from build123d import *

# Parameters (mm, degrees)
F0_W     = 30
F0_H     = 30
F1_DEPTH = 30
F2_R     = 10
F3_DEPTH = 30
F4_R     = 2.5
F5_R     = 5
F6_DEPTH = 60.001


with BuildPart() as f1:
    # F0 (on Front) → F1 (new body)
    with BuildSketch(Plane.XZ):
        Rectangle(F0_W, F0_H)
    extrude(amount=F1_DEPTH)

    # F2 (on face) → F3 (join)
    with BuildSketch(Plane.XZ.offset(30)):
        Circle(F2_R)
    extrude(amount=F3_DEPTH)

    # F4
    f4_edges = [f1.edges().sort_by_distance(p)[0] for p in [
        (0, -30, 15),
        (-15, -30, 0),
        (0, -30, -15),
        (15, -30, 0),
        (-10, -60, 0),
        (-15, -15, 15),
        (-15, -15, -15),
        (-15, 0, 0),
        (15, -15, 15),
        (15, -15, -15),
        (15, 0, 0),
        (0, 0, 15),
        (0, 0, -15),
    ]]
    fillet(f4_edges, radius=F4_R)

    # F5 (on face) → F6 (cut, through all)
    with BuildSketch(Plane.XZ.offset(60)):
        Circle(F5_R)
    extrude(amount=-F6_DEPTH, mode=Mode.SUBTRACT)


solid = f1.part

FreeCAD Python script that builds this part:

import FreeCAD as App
import Part
import Sketcher

V = App.Vector


def edges_at(feature, points):
    """Names of the edges that pass closest to the given points."""
    edges = feature.Shape.Edges
    near = lambda p: min(range(len(edges)), key=lambda i: edges[i].distToShape(Part.Vertex(*p))[0])
    return sorted({f"Edge{near(p) + 1}" for p in points})

doc = App.newDocument("Part")
params = doc.addObject("Spreadsheet::Sheet", "Params")
for row, (alias, value) in enumerate([
    ("sketch1_width", "30 mm"),
    ("pad1_length", "30 mm"),
    ("sketch2_diameter", "20 mm"),
    ("pad2_length", "30 mm"),
    ("fillet_radius", "2.5 mm"),
    ("sketch3_diameter", "10 mm"),
], start=1):
    params.set(f"A{row}", alias)
    params.set(f"B{row}", "=" + value)
    params.setAlias(f"B{row}", alias)

body = doc.addObject("PartDesign::Body", "Body")

# Sketch on XZ plane
sketch1 = body.newObject("Sketcher::SketchObject", "Sketch")
sketch1.AttachmentSupport = (doc.getObject("XZ_Plane"), [""])
sketch1.MapMode = "FlatFace"
sketch1.addGeometry(Part.LineSegment(V(-15, 15, 0), V(-15, -15, 0)), False)
sketch1.addGeometry(Part.LineSegment(V(-15, -15, 0), V(15, -15, 0)), False)
sketch1.addGeometry(Part.LineSegment(V(15, -15, 0), V(15, 15, 0)), False)
sketch1.addGeometry(Part.LineSegment(V(15, 15, 0), V(-15, 15, 0)), False)
sketch1.addConstraint(Sketcher.Constraint("Coincident", 0, 2, 1, 1))
sketch1.addConstraint(Sketcher.Constraint("Coincident", 1, 2, 2, 1))
sketch1.addConstraint(Sketcher.Constraint("Coincident", 2, 2, 3, 1))
sketch1.addConstraint(Sketcher.Constraint("Coincident", 3, 2, 0, 1))
sketch1.addConstraint(Sketcher.Constraint("Vertical", 0))
sketch1.addConstraint(Sketcher.Constraint("Horizontal", 1))
sketch1.addConstraint(Sketcher.Constraint("Vertical", 2))
sketch1.addConstraint(Sketcher.Constraint("Horizontal", 3))
sketch1.addConstraint(Sketcher.Constraint("Symmetric", 0, 2, 2, 2, -1, 1))
sketch1.addConstraint(Sketcher.Constraint("Equal", 3, 0))
sketch1.addConstraint(Sketcher.Constraint("DistanceX", 1, 1, 1, 2, 30.0))
sketch1.setExpression("Constraints[10]", "Params.sketch1_width")
pad1 = body.newObject("PartDesign::Pad", "Pad")
pad1.Profile = sketch1
pad1.setExpression("Length", "Params.pad1_length")

# Sketch on XZ plane
sketch2 = body.newObject("Sketcher::SketchObject", "Sketch001")
sketch2.AttachmentSupport = (doc.getObject("XZ_Plane"), [""])
sketch2.MapMode = "FlatFace"
sketch2.AttachmentOffset = App.Placement(V(0, 0, 30), App.Rotation())
sketch2.addGeometry(Part.Circle(V(0, 0, 0), V(0, 0, 1), 10), False)
sketch2.addConstraint(Sketcher.Constraint("Coincident", 0, 3, -1, 1))
sketch2.addConstraint(Sketcher.Constraint("Diameter", 0, 20.0))
sketch2.setExpression("Constraints[1]", "Params.sketch2_diameter")
pad2 = body.newObject("PartDesign::Pad", "Pad001")
pad2.Profile = sketch2
pad2.setExpression("Length", "Params.pad2_length")
doc.recompute()

fillet = body.newObject("PartDesign::Fillet", "Fillet")
fillet.Base = (pad2, edges_at(pad2, [
    (0, -30, 15),
    (-15, -30, 0),
    (0, -30, -15),
    (15, -30, 0),
    (-10, -60, 0),
    (-15, -15, 15),
    (-15, -15, -15),
    (-15, 0, 0),
    (15, -15, 15),
    (15, -15, -15),
    (15, 0, 0),
    (0, 0, 15),
    (0, 0, -15),
]))
fillet.setExpression("Radius", "Params.fillet_radius")

# Sketch on XZ plane
sketch3 = body.newObject("Sketcher::SketchObject", "Sketch002")
sketch3.AttachmentSupport = (doc.getObject("XZ_Plane"), [""])
sketch3.MapMode = "FlatFace"
sketch3.AttachmentOffset = App.Placement(V(0, 0, 60), App.Rotation())
sketch3.addGeometry(Part.Circle(V(0, 0, 0), V(0, 0, 1), 5), False)
sketch3.addConstraint(Sketcher.Constraint("Coincident", 0, 3, -1, 1))
sketch3.addConstraint(Sketcher.Constraint("Diameter", 0, 10.0))
sketch3.setExpression("Constraints[1]", "Params.sketch3_diameter")
pocket1 = body.newObject("PartDesign::Pocket", "Pocket")
pocket1.Profile = sketch3
pocket1.Type = "ThroughAll"

doc.recompute()
